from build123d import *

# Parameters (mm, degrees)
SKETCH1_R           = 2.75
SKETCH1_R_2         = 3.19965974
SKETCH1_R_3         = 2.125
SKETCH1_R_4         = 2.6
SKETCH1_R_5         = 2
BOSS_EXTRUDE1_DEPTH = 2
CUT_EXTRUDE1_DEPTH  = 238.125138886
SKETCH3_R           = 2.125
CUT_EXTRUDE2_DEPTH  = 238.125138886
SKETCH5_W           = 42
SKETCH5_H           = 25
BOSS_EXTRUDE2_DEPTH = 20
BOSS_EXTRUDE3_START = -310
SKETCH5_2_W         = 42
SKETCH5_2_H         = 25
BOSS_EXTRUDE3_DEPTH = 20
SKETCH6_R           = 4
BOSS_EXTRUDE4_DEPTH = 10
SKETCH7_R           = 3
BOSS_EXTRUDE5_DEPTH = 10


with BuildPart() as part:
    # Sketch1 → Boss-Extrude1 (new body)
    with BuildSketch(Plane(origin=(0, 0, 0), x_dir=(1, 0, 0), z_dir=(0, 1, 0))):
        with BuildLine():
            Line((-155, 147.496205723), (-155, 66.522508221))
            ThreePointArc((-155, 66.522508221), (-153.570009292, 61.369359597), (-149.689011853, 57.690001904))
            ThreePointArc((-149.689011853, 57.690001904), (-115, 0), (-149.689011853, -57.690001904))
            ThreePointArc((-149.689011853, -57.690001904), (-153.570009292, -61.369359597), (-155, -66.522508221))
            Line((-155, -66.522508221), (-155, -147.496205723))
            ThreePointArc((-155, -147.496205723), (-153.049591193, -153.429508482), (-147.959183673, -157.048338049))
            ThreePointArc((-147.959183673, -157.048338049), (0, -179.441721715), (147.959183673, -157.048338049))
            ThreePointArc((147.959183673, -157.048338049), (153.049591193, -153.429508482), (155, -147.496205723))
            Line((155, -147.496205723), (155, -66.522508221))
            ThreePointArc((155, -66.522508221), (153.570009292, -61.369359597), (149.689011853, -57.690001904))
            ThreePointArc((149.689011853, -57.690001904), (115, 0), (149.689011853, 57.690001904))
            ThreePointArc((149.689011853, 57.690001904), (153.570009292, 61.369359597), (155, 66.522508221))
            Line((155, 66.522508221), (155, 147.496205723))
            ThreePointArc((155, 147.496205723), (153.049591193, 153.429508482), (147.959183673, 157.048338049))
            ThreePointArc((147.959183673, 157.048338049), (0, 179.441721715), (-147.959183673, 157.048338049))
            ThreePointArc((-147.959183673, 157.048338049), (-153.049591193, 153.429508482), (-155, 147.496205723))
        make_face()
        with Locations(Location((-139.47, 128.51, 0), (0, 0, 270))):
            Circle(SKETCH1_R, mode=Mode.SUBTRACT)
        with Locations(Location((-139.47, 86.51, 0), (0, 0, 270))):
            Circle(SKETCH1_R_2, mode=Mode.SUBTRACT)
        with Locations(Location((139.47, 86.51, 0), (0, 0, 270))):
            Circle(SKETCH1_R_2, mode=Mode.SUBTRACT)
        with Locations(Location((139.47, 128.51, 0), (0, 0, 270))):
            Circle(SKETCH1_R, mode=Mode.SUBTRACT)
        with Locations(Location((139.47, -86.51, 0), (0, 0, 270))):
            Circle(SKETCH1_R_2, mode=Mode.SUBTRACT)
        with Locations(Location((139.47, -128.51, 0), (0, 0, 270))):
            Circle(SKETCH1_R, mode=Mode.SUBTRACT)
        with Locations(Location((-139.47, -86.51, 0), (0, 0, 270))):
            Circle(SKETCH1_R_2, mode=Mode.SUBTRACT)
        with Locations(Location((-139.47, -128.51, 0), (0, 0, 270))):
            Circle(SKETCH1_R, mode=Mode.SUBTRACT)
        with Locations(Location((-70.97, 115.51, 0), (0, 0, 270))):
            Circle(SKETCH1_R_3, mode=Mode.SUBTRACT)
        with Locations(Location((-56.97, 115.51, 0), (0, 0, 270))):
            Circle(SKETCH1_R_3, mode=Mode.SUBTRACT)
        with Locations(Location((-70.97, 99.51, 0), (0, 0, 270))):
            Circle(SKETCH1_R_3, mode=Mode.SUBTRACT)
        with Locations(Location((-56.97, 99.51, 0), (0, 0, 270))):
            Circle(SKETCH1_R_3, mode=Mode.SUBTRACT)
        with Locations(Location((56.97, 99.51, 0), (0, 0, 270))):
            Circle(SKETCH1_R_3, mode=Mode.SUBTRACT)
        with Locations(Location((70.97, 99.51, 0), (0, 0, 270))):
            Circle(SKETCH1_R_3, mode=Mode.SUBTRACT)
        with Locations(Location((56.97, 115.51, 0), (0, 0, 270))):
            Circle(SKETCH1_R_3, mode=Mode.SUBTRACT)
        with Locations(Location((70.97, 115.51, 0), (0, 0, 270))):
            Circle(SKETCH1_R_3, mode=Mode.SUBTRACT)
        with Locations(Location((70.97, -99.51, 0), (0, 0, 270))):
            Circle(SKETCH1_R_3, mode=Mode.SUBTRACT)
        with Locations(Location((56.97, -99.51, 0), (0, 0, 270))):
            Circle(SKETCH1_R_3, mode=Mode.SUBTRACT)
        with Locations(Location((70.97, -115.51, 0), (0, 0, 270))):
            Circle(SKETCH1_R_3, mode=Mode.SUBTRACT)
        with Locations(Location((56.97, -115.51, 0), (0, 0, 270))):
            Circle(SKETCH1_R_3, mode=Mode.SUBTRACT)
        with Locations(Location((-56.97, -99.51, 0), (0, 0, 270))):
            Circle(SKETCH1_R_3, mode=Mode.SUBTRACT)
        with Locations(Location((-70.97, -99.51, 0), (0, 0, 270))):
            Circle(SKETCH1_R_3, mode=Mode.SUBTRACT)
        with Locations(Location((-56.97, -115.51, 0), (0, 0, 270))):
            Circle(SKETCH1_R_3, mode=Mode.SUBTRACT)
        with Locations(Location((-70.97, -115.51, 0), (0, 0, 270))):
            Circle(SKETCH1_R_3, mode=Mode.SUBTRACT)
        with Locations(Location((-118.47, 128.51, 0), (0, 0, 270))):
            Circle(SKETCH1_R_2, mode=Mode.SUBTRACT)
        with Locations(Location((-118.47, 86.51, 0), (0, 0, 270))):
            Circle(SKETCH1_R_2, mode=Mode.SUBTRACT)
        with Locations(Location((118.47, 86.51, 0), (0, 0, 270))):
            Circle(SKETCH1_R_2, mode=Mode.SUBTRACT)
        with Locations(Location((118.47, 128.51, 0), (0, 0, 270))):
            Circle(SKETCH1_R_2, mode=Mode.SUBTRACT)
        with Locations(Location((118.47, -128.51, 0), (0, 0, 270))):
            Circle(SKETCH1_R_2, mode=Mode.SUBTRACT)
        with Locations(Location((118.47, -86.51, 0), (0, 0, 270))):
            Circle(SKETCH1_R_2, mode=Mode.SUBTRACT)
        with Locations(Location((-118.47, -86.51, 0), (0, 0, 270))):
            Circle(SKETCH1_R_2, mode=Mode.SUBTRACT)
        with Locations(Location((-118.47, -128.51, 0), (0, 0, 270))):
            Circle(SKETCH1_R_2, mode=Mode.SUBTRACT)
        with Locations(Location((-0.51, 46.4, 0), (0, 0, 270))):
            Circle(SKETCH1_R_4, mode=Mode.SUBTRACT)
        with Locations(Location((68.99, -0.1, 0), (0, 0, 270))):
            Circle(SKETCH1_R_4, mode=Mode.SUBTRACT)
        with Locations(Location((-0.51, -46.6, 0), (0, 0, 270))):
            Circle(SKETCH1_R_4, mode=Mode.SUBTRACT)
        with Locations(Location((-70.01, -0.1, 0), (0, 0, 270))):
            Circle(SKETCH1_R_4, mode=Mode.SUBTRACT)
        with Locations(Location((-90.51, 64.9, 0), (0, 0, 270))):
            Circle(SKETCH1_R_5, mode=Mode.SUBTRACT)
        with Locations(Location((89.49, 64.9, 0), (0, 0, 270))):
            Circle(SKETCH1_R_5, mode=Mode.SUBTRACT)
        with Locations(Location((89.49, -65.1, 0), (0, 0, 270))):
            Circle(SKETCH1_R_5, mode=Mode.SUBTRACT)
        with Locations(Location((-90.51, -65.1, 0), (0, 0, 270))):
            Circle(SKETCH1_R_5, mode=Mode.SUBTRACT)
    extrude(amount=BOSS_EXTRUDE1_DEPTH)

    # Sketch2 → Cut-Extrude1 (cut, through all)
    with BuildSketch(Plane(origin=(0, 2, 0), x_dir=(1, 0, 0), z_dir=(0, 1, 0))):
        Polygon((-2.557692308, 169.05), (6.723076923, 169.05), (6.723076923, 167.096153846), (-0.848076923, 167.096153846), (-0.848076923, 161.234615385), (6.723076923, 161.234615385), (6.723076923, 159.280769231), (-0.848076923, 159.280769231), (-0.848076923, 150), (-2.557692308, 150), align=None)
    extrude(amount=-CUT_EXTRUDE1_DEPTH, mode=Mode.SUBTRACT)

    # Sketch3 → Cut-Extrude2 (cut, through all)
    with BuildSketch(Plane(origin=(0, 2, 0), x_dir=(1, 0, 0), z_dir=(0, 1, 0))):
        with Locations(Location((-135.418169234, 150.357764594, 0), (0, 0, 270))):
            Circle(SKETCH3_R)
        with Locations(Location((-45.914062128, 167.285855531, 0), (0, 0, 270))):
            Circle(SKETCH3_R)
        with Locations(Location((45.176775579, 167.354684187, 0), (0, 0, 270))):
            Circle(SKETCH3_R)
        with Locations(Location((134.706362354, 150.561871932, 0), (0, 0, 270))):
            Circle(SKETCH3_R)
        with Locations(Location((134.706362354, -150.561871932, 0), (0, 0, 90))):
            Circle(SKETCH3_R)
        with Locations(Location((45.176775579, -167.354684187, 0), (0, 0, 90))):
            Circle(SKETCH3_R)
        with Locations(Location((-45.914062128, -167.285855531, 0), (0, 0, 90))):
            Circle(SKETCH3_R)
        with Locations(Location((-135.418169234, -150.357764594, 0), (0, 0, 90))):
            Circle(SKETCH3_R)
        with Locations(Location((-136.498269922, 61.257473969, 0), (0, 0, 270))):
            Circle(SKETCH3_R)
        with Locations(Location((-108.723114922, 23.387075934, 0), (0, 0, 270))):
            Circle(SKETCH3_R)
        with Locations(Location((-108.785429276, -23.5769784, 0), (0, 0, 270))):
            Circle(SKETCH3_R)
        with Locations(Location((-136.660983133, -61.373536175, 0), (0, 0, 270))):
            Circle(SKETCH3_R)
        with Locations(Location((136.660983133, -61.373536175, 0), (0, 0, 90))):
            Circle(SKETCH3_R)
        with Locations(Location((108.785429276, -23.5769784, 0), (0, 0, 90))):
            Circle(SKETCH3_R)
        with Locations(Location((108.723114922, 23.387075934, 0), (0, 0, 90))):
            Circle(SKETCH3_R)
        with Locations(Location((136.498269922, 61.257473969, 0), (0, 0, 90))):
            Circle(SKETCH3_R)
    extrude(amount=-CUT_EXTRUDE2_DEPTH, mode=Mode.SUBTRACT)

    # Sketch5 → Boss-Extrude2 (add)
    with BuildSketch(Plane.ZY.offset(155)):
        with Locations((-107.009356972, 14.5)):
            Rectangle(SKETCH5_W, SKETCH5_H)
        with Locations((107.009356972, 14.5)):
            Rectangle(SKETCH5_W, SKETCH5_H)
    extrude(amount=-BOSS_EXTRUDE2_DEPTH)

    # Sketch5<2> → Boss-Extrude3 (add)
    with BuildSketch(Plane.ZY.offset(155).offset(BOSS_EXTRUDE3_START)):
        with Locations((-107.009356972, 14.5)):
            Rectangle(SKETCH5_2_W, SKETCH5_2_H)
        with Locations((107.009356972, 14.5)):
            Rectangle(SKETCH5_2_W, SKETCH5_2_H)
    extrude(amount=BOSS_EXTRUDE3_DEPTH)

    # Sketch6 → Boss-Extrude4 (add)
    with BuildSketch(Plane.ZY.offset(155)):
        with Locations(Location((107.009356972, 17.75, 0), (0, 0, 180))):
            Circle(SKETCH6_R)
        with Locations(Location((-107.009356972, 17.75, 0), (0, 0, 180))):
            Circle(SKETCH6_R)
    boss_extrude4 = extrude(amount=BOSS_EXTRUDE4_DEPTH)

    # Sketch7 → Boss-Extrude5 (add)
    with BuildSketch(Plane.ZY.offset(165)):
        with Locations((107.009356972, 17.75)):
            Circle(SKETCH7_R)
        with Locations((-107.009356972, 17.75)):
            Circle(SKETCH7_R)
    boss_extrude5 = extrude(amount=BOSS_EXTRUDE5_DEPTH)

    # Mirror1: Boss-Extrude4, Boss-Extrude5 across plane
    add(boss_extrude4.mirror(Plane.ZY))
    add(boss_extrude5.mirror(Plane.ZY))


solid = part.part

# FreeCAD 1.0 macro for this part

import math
import FreeCAD as App
import Part
import Sketcher


def add_polygon(sketch, points):
    """Adds a closed chain of lines whose ends are joined by coincident constraints."""
    first, n = sketch.GeometryCount, len(points)
    for a, b in zip(points, points[1:] + points[:1]):
        sketch.addGeometry(Part.LineSegment(App.Vector(*a, 0), App.Vector(*b, 0)), False)
    for i in range(n):
        sketch.addConstraint(Sketcher.Constraint("Coincident", first + i, 2, first + (i + 1) % n, 1))

doc = App.newDocument("Part")
body = doc.addObject("PartDesign::Body", "Body")

sketch1 = body.newObject("Sketcher::SketchObject", "Sketch")
sketch1.AttachmentSupport = (doc.getObject("XZ_Plane"), [""])
sketch1.MapMode = "FlatFace"
sketch1.addGeometry([
    Part.LineSegment(App.Vector(-155, -147.496206, 0), App.Vector(-155, -66.522508, 0)),
    Part.ArcOfCircle(Part.Circle(App.Vector(-145, -66.522508, 0), App.Vector(0, 0, 1), 10), math.radians(117.962994), math.radians(180)),
    Part.ArcOfCircle(Part.Circle(App.Vector(-180.315551, 0, 0), App.Vector(0, 0, 1), 65.315551), math.radians(-62.037006), math.radians(62.037006)),
    Part.ArcOfCircle(Part.Circle(App.Vector(-145, 66.522508, 0), App.Vector(0, 0, 1), 10), math.radians(180), math.radians(242.037006)),
    Part.LineSegment(App.Vector(-155, 66.522508, 0), App.Vector(-155, 147.496206, 0)),
    Part.ArcOfCircle(Part.Circle(App.Vector(-145, 147.496206, 0), App.Vector(0, 0, 1), 10), math.radians(107.212615), math.radians(180)),
    Part.ArcOfCircle(Part.Circle(App.Vector(0, -320.558278, 0), App.Vector(0, 0, 1), 500), math.radians(72.787385), math.radians(107.212615)),
    Part.ArcOfCircle(Part.Circle(App.Vector(145, 147.496206, 0), App.Vector(0, 0, 1), 10), math.radians(0), math.radians(72.787385)),
    Part.LineSegment(App.Vector(155, 147.496206, 0), App.Vector(155, 66.522508, 0)),
    Part.ArcOfCircle(Part.Circle(App.Vector(145, 66.522508, 0), App.Vector(0, 0, 1), 10), math.radians(-62.037006), math.radians(0)),
    Part.ArcOfCircle(Part.Circle(App.Vector(180.315551, 0, 0), App.Vector(0, 0, 1), 65.315551), math.radians(117.962994), math.radians(242.037006)),
    Part.ArcOfCircle(Part.Circle(App.Vector(145, -66.522508, 0), App.Vector(0, 0, 1), 10), math.radians(0), math.radians(62.037006)),
    Part.LineSegment(App.Vector(155, -66.522508, 0), App.Vector(155, -147.496206, 0)),
    Part.ArcOfCircle(Part.Circle(App.Vector(145, -147.496206, 0), App.Vector(0, 0, 1), 10), math.radians(-72.787385), math.radians(0)),
    Part.ArcOfCircle(Part.Circle(App.Vector(0, 320.558278, 0), App.Vector(0, 0, 1), 500), math.radians(-107.212615), math.radians(-72.787385)),
    Part.ArcOfCircle(Part.Circle(App.Vector(-145, -147.496206, 0), App.Vector(0, 0, 1), 10), math.radians(180), math.radians(252.787385)),
    Part.Circle(App.Vector(-139.47, 128.51, 0), App.Vector(0, 0, 1), 2.75),
    Part.Circle(App.Vector(-118.47, 128.51, 0), App.Vector(0, 0, 1), 3.19966),
    Part.Circle(App.Vector(-139.47, 86.51, 0), App.Vector(0, 0, 1), 3.19966),
    Part.Circle(App.Vector(-118.47, 86.51, 0), App.Vector(0, 0, 1), 3.19966),
    Part.Circle(App.Vector(-70.97, 115.51, 0), App.Vector(0, 0, 1), 2.125),
    Part.Circle(App.Vector(-56.97, 115.51, 0), App.Vector(0, 0, 1), 2.125),
    Part.Circle(App.Vector(-70.97, 99.51, 0), App.Vector(0, 0, 1), 2.125),
    Part.Circle(App.Vector(-56.97, 99.51, 0), App.Vector(0, 0, 1), 2.125),
    Part.Circle(App.Vector(-90.51, 65.1, 0), App.Vector(0, 0, 1), 2),
    Part.Circle(App.Vector(-0.51, 46.6, 0), App.Vector(0, 0, 1), 2.6),
    Part.Circle(App.Vector(-70.01, 0.1, 0), App.Vector(0, 0, 1), 2.6),
    Part.Circle(App.Vector(56.97, 115.51, 0), App.Vector(0, 0, 1), 2.125),
    Part.Circle(App.Vector(70.97, 115.51, 0), App.Vector(0, 0, 1), 2.125),
    Part.Circle(App.Vector(56.97, 99.51, 0), App.Vector(0, 0, 1), 2.125),
    Part.Circle(App.Vector(70.97, 99.51, 0), App.Vector(0, 0, 1), 2.125),
    Part.Circle(App.Vector(118.47, 128.51, 0), App.Vector(0, 0, 1), 3.19966),
    Part.Circle(App.Vector(139.47, 128.51, 0), App.Vector(0, 0, 1), 2.75),
    Part.Circle(App.Vector(118.47, 86.51, 0), App.Vector(0, 0, 1), 3.19966),
    Part.Circle(App.Vector(139.47, 86.51, 0), App.Vector(0, 0, 1), 3.19966),
    Part.Circle(App.Vector(68.99, 0.1, 0), App.Vector(0, 0, 1), 2.6),
    Part.Circle(App.Vector(89.49, 65.1, 0), App.Vector(0, 0, 1), 2),
    Part.Circle(App.Vector(-90.51, -64.9, 0), App.Vector(0, 0, 1), 2),
    Part.Circle(App.Vector(-0.51, -46.4, 0), App.Vector(0, 0, 1), 2.6),
    Part.Circle(App.Vector(-139.47, -86.51, 0), App.Vector(0, 0, 1), 3.19966),
    Part.Circle(App.Vector(-118.47, -86.51, 0), App.Vector(0, 0, 1), 3.19966),
    Part.Circle(App.Vector(-139.47, -128.51, 0), App.Vector(0, 0, 1), 2.75),
    Part.Circle(App.Vector(-118.47, -128.51, 0), App.Vector(0, 0, 1), 3.19966),
    Part.Circle(App.Vector(-70.97, -99.51, 0), App.Vector(0, 0, 1), 2.125),
    Part.Circle(App.Vector(-56.97, -99.51, 0), App.Vector(0, 0, 1), 2.125),
    Part.Circle(App.Vector(-70.97, -115.51, 0), App.Vector(0, 0, 1), 2.125),
    Part.Circle(App.Vector(-56.97, -115.51, 0), App.Vector(0, 0, 1), 2.125),
    Part.Circle(App.Vector(89.49, -64.9, 0), App.Vector(0, 0, 1), 2),
    Part.Circle(App.Vector(56.97, -99.51, 0), App.Vector(0, 0, 1), 2.125),
    Part.Circle(App.Vector(70.97, -99.51, 0), App.Vector(0, 0, 1), 2.125),
    Part.Circle(App.Vector(56.97, -115.51, 0), App.Vector(0, 0, 1), 2.125),
    Part.Circle(App.Vector(70.97, -115.51, 0), App.Vector(0, 0, 1), 2.125),
    Part.Circle(App.Vector(118.47, -86.51, 0), App.Vector(0, 0, 1), 3.19966),
    Part.Circle(App.Vector(139.47, -86.51, 0), App.Vector(0, 0, 1), 3.19966),
    Part.Circle(App.Vector(118.47, -128.51, 0), App.Vector(0, 0, 1), 3.19966),
    Part.Circle(App.Vector(139.47, -128.51, 0), App.Vector(0, 0, 1), 2.75),
], False)
sketch1.addConstraint([
    Sketcher.Constraint("Tangent", 0, 2, 1, 2),
    Sketcher.Constraint("Tangent", 1, 1, 2, 1),
    Sketcher.Constraint("Tangent", 2, 2, 3, 2),
    Sketcher.Constraint("Tangent", 3, 1, 4, 1),
    Sketcher.Constraint("Tangent", 4, 2, 5, 2),
    Sketcher.Constraint("Tangent", 5, 1, 6, 2),
    Sketcher.Constraint("Tangent", 6, 1, 7, 2),
    Sketcher.Constraint("Tangent", 7, 1, 8, 1),
    Sketcher.Constraint("Tangent", 8, 2, 9, 2),
    Sketcher.Constraint("Tangent", 9, 1, 10, 1),
    Sketcher.Constraint("Tangent", 10, 2, 11, 2),
    Sketcher.Constraint("Tangent", 11, 1, 12, 1),
    Sketcher.Constraint("Tangent", 12, 2, 13, 2),
    Sketcher.Constraint("Tangent", 13, 1, 14, 2),
    Sketcher.Constraint("Tangent", 14, 1, 15, 2),
    Sketcher.Constraint("Tangent", 15, 1, 0, 1),
    Sketcher.Constraint("Vertical", 0),
    Sketcher.Constraint("Vertical", 4),
    Sketcher.Constraint("Vertical", 8),
    Sketcher.Constraint("Vertical", 12),
    Sketcher.Constraint("Equal", 1, 3),
    Sketcher.Constraint("Equal", 3, 5),
    Sketcher.Constraint("Equal", 5, 7),
    Sketcher.Constraint("Equal", 7, 9),
    Sketcher.Constraint("Equal", 2, 10),
    Sketcher.Constraint("Equal", 9, 11),
    Sketcher.Constraint("Equal", 11, 13),
    Sketcher.Constraint("Equal", 6, 14),
    Sketcher.Constraint("Equal", 13, 15),
    Sketcher.Constraint("Equal", 17, 18),
    Sketcher.Constraint("Equal", 18, 19),
    Sketcher.Constraint("Equal", 20, 21),
    Sketcher.Constraint("Equal", 21, 22),
    Sketcher.Constraint("Equal", 22, 23),
    Sketcher.Constraint("Equal", 25, 26),
    Sketcher.Constraint("Equal", 23, 27),
    Sketcher.Constraint("Equal", 27, 28),
    Sketcher.Constraint("Equal", 28, 29),
    Sketcher.Constraint("Equal", 29, 30),
    Sketcher.Constraint("Equal", 19, 31),
    Sketcher.Constraint("Equal", 16, 32),
    Sketcher.Constraint("Equal", 31, 33),
    Sketcher.Constraint("Equal", 33, 34),
    Sketcher.Constraint("Equal", 26, 35),
    Sketcher.Constraint("Equal", 24, 36),
    Sketcher.Constraint("Equal", 36, 37),
    Sketcher.Constraint("Equal", 35, 38),
    Sketcher.Constraint("Equal", 34, 39),
    Sketcher.Constraint("Equal", 39, 40),
    Sketcher.Constraint("Equal", 32, 41),
    Sketcher.Constraint("Equal", 40, 42),
    Sketcher.Constraint("Equal", 30, 43),
    Sketcher.Constraint("Equal", 43, 44),
    Sketcher.Constraint("Equal", 44, 45),
    Sketcher.Constraint("Equal", 45, 46),
    Sketcher.Constraint("Equal", 37, 47),
    Sketcher.Constraint("Equal", 46, 48),
    Sketcher.Constraint("Equal", 48, 49),
    Sketcher.Constraint("Equal", 49, 50),
    Sketcher.Constraint("Equal", 50, 51),
    Sketcher.Constraint("Equal", 42, 52),
    Sketcher.Constraint("Equal", 52, 53),
    Sketcher.Constraint("Equal", 53, 54),
    Sketcher.Constraint("Equal", 41, 55),
    Sketcher.Constraint("Symmetric", 1, 3, 9, 3, -1, 1),
    Sketcher.Constraint("Symmetric", 3, 3, 11, 3, -1, 1),
    Sketcher.Constraint("Symmetric", 6, 3, 14, 3, -1, 1),
    Sketcher.Constraint("Symmetric", 34, 3, 39, 3, -1, 1),
    Sketcher.Constraint("Symmetric", 33, 3, 40, 3, -1, 1),
    Sketcher.Constraint("Symmetric", 32, 3, 41, 3, -1, 1),
    Sketcher.Constraint("Symmetric", 31, 3, 42, 3, -1, 1),
    Sketcher.Constraint("Symmetric", 30, 3, 43, 3, -1, 1),
    Sketcher.Constraint("Symmetric", 29, 3, 44, 3, -1, 1),
    Sketcher.Constraint("Symmetric", 28, 3, 45, 3, -1, 1),
    Sketcher.Constraint("Symmetric", 27, 3, 46, 3, -1, 1),
    Sketcher.Constraint("Symmetric", 23, 3, 48, 3, -1, 1),
    Sketcher.Constraint("Symmetric", 22, 3, 49, 3, -1, 1),
    Sketcher.Constraint("Symmetric", 21, 3, 50, 3, -1, 1),
    Sketcher.Constraint("Symmetric", 20, 3, 51, 3, -1, 1),
    Sketcher.Constraint("Symmetric", 19, 3, 52, 3, -1, 1),
    Sketcher.Constraint("Symmetric", 18, 3, 53, 3, -1, 1),
    Sketcher.Constraint("Symmetric", 17, 3, 54, 3, -1, 1),
    Sketcher.Constraint("Symmetric", 16, 3, 55, 3, -1, 1),
    Sketcher.Constraint("Symmetric", 5, 3, 7, 3, -2),
    Sketcher.Constraint("Symmetric", 21, 3, 27, 3, -2),
    Sketcher.Constraint("Symmetric", 20, 3, 28, 3, -2),
    Sketcher.Constraint("Symmetric", 23, 3, 29, 3, -2),
    Sketcher.Constraint("Symmetric", 22, 3, 30, 3, -2),
    Sketcher.Constraint("Symmetric", 17, 3, 31, 3, -2),
    Sketcher.Constraint("Symmetric", 16, 3, 32, 3, -2),
    Sketcher.Constraint("Symmetric", 19, 3, 33, 3, -2),
    Sketcher.Constraint("Symmetric", 18, 3, 34, 3, -2),
    Sketcher.Constraint("PointOnObject", 2, 3, -1),
    Sketcher.Constraint("Horizontal", 16, 3, 17, 3),
    Sketcher.Constraint("Horizontal", 18, 3, 19, 3),
    Sketcher.Constraint("Horizontal", 20, 3, 21, 3),
    Sketcher.Constraint("Horizontal", 22, 3, 23, 3),
    Sketcher.Constraint("Horizontal", 26, 3, 35, 3),
    Sketcher.Constraint("Horizontal", 24, 3, 36, 3),
    Sketcher.Constraint("Horizontal", 37, 3, 47, 3),
    Sketcher.Constraint("Vertical", 16, 3, 18, 3),
    Sketcher.Constraint("Vertical", 17, 3, 19, 3),
    Sketcher.Constraint("Vertical", 20, 3, 22, 3),
    Sketcher.Constraint("Vertical", 21, 3, 23, 3),
    Sketcher.Constraint("Vertical", 24, 3, 37, 3),
    Sketcher.Constraint("Vertical", 25, 3, 38, 3),
    Sketcher.Constraint("Vertical", 36, 3, 47, 3),
    Sketcher.Constraint("Diameter", 24, 4.0),
    Sketcher.Constraint("Radius", 1, 10.0),
    Sketcher.Constraint("Radius", 6, 500.0),
    Sketcher.Constraint("Diameter", 16, 5.5),
    Sketcher.Constraint("Diameter", 25, 5.2),
    Sketcher.Constraint("Diameter", 20, 4.25),
    Sketcher.Constraint("DistanceX", 1, 3, -1, 1, 145.0),
    Sketcher.Constraint("DistanceY", -1, 1, 24, 3, 65.1),
    Sketcher.Constraint("DistanceY", -1, 1, 25, 3, 46.6),
    Sketcher.Constraint("DistanceY", -1, 1, 26, 3, 0.1),
    Sketcher.Constraint("DistanceY", 37, 3, -1, 1, 64.9),
    Sketcher.Constraint("DistanceY", 38, 3, -1, 1, 46.4),
    Sketcher.Constraint("Diameter", 17, 6.399319),
    Sketcher.Constraint("DistanceX", 16, 3, -1, 1, 139.47),
    Sketcher.Constraint("DistanceY", -1, 1, 16, 3, 128.51),
    Sketcher.Constraint("DistanceX", 17, 3, -1, 1, 118.47),
    Sketcher.Constraint("DistanceY", -1, 1, 18, 3, 86.51),
    Sketcher.Constraint("DistanceX", 20, 3, -1, 1, 70.97),
    Sketcher.Constraint("DistanceY", -1, 1, 20, 3, 115.51),
    Sketcher.Constraint("DistanceX", 21, 3, -1, 1, 56.97),
    Sketcher.Constraint("DistanceY", -1, 1, 22, 3, 99.51),
    Sketcher.Constraint("DistanceX", 24, 3, -1, 1, 90.51),
    Sketcher.Constraint("DistanceX", 25, 3, -1, 1, 0.51),
    Sketcher.Constraint("DistanceX", 26, 3, -1, 1, 70.01),
    Sketcher.Constraint("DistanceX", -1, 1, 35, 3, 68.99),
    Sketcher.Constraint("DistanceX", -1, 1, 36, 3, 89.49),
    Sketcher.Constraint("DistanceY", 1, 1, -1, 1, 57.690002),
    Sketcher.Constraint("Radius", 2, 65.315551),
    Sketcher.Constraint("DistanceY", 0, 1, 0, 2, 80.973698),
])
pad1 = body.newObject("PartDesign::Pad", "Pad")
pad1.Profile = sketch1
pad1.Length = 2
pad1.Reversed = True

sketch2 = body.newObject("Sketcher::SketchObject", "Sketch001")
sketch2.AttachmentSupport = (doc.getObject("XZ_Plane"), [""])
sketch2.MapMode = "FlatFace"
sketch2.AttachmentOffset = App.Placement(App.Vector(0, 0, -2), App.Rotation())
add_polygon(sketch2, [(6.723077, -169.05), (-2.557692, -169.05), (-2.557692, -150), (-0.848077, -150), (-0.848077, -159.280769), (6.723077, -159.280769), (6.723077, -161.234615), (-0.848077, -161.234615), (-0.848077, -167.096154), (6.723077, -167.096154)])
sketch2.addConstraint([
    Sketcher.Constraint("Horizontal", 0),
    Sketcher.Constraint("Vertical", 1),
    Sketcher.Constraint("Horizontal", 2),
    Sketcher.Constraint("Vertical", 3),
    Sketcher.Constraint("Horizontal", 4),
    Sketcher.Constraint("Vertical", 5),
    Sketcher.Constraint("Horizontal", 6),
    Sketcher.Constraint("Vertical", 7),
    Sketcher.Constraint("Horizontal", 8),
    Sketcher.Constraint("Vertical", 9),
    Sketcher.Constraint("Vertical", 3, 2, 6, 2),
    Sketcher.Constraint("Vertical", 5, 2, 8, 2),
    Sketcher.Constraint("Equal", 0, 3),
    Sketcher.Constraint("Equal", 5, 9),
    Sketcher.Constraint("DistanceY", 1, 2, -1, 1, 150.0),
    Sketcher.Constraint("DistanceY", 1, 1, 1, 2, 19.05),
    Sketcher.Constraint("DistanceX", 0, 2, 0, 1, 9.280769),
    Sketcher.Constraint("DistanceY", 7, 2, 7, 1, 5.861538),
    Sketcher.Constraint("DistanceX", 2, 1, 2, 2, 1.709615),
    Sketcher.Constraint("DistanceX", 0, 2, -1, 1, 2.557692),
])
pocket1 = body.newObject("PartDesign::Pocket", "Pocket")
pocket1.Profile = sketch2
pocket1.Type = "ThroughAll"
pocket1.Reversed = True

sketch3 = body.newObject("Sketcher::SketchObject", "Sketch002")
sketch3.AttachmentSupport = (doc.getObject("XZ_Plane"), [""])
sketch3.MapMode = "FlatFace"
sketch3.AttachmentOffset = App.Placement(App.Vector(0, 0, -2), App.Rotation())
sketch3.addGeometry([
    Part.Circle(App.Vector(-135.418169, -150.357765, 0), App.Vector(0, 0, 1), 2.125),
    Part.Circle(App.Vector(-45.914062, -167.285856, 0), App.Vector(0, 0, 1), 2.125),
    Part.Circle(App.Vector(45.176776, -167.354684, 0), App.Vector(0, 0, 1), 2.125),
    Part.Circle(App.Vector(134.706362, -150.561872, 0), App.Vector(0, 0, 1), 2.125),
    Part.Circle(App.Vector(134.706362, 150.561872, 0), App.Vector(0, 0, 1), 2.125),
    Part.Circle(App.Vector(45.176776, 167.354684, 0), App.Vector(0, 0, 1), 2.125),
    Part.Circle(App.Vector(-45.914062, 167.285856, 0), App.Vector(0, 0, 1), 2.125),
    Part.Circle(App.Vector(-135.418169, 150.357765, 0), App.Vector(0, 0, 1), 2.125),
    Part.Circle(App.Vector(-136.49827, -61.257474, 0), App.Vector(0, 0, 1), 2.125),
    Part.Circle(App.Vector(-108.723115, -23.387076, 0), App.Vector(0, 0, 1), 2.125),
    Part.Circle(App.Vector(-108.785429, 23.576978, 0), App.Vector(0, 0, 1), 2.125),
    Part.Circle(App.Vector(-136.660983, 61.373536, 0), App.Vector(0, 0, 1), 2.125),
    Part.Circle(App.Vector(136.660983, 61.373536, 0), App.Vector(0, 0, 1), 2.125),
    Part.Circle(App.Vector(108.785429, 23.576978, 0), App.Vector(0, 0, 1), 2.125),
    Part.Circle(App.Vector(108.723115, -23.387076, 0), App.Vector(0, 0, 1), 2.125),
    Part.Circle(App.Vector(136.49827, -61.257474, 0), App.Vector(0, 0, 1), 2.125),
], False)
sketch3.addConstraint([
    Sketcher.Constraint("Equal", 0, 1),
    Sketcher.Constraint("Equal", 1, 2),
    Sketcher.Constraint("Equal", 2, 3),
    Sketcher.Constraint("Equal", 3, 4),
    Sketcher.Constraint("Equal", 4, 5),
    Sketcher.Constraint("Equal", 5, 6),
    Sketcher.Constraint("Equal", 6, 7),
    Sketcher.Constraint("Equal", 7, 8),
    Sketcher.Constraint("Equal", 8, 9),
    Sketcher.Constraint("Equal", 9, 10),
    Sketcher.Constraint("Equal", 10, 11),
    Sketcher.Constraint("Equal", 11, 12),
    Sketcher.Constraint("Equal", 12, 13),
    Sketcher.Constraint("Equal", 13, 14),
    Sketcher.Constraint("Equal", 14, 15),
    Sketcher.Constraint("Symmetric", 11, 3, 12, 3, -2),
    Sketcher.Constraint("Symmetric", 10, 3, 13, 3, -2),
    Sketcher.Constraint("Symmetric", 9, 3, 14, 3, -2),
    Sketcher.Constraint("Symmetric", 8, 3, 15, 3, -2),
    Sketcher.Constraint("Symmetric", 3, 3, 4, 3, -1),
    Sketcher.Constraint("Symmetric", 2, 3, 5, 3, -1),
    Sketcher.Constraint("Symmetric", 1, 3, 6, 3, -1),
    Sketcher.Constraint("Symmetric", 0, 3, 7, 3, -1),
    Sketcher.Constraint("Diameter", 0, 4.25),
    Sketcher.Constraint("DistanceX", 8, 3, 0, 3, 1.080101),
    Sketcher.Constraint("DistanceY", 8, 3, 9, 3, 37.870398),
    Sketcher.Constraint("DistanceX", 0, 3, -1, 1, 135.418169),
    Sketcher.Constraint("DistanceY", 3, 3, -1, 1, 150.561872),
    Sketcher.Constraint("DistanceX", 10, 3, -1, 1, 108.785429),
    Sketcher.Constraint("DistanceY", -1, 1, 10, 3, 23.576978),
    Sketcher.Constraint("DistanceY", 1, 3, 0, 3, 16.928091),
    Sketcher.Constraint("DistanceY", 2, 3, 1, 3, 0.068829),
    Sketcher.Constraint("DistanceX", 0, 3, 3, 3, 270.124532),
    Sketcher.Constraint("DistanceY", 2, 3, 5, 3, 334.709368),
    Sketcher.Constraint("DistanceY", 0, 3, 8, 3, 89.100291),
    Sketcher.Constraint("DistanceY", 11, 3, 7, 3, 88.984228),
    Sketcher.Constraint("DistanceX", 11, 3, 9, 3, 27.937868),
    Sketcher.Constraint("DistanceX", 11, 3, 6, 3, 90.746921),
    Sketcher.Constraint("DistanceX", 4, 3, 12, 3, 1.954621),
    Sketcher.Constraint("DistanceX", 2, 3, 14, 3, 63.546339),
])
pocket2 = body.newObject("PartDesign::Pocket", "Pocket001")
pocket2.Profile = sketch3
pocket2.Type = "ThroughAll"
pocket2.Reversed = True

sketch4 = body.newObject("Sketcher::SketchObject", "Sketch003")
sketch4.AttachmentSupport = (doc.getObject("YZ_Plane"), [""])
sketch4.MapMode = "FlatFace"
sketch4.AttachmentOffset = App.Placement(App.Vector(0, 0, -155), App.Rotation())
add_polygon(sketch4, [(27, -128.009357), (2, -128.009357), (2, -86.009357), (27, -86.009357)])
add_polygon(sketch4, [(27, 86.009357), (2, 86.009357), (2, 128.009357), (27, 128.009357)])
sketch4.addConstraint([
    Sketcher.Constraint("Horizontal", 0),
    Sketcher.Constraint("Vertical", 1),
    Sketcher.Constraint("Horizontal", 2),
    Sketcher.Constraint("Vertical", 3),
    Sketcher.Constraint("Horizontal", 4),
    Sketcher.Constraint("Vertical", 5),
    Sketcher.Constraint("Horizontal", 6),
    Sketcher.Constraint("Vertical", 7),
    Sketcher.Constraint("Symmetric", 1, 2, 4, 2, -1),
    Sketcher.Constraint("Symmetric", 3, 2, 6, 2, -1),
    Sketcher.Constraint("DistanceX", 0, 2, 0, 1, 25.0),
    Sketcher.Constraint("DistanceY", 1, 1, 1, 2, 42.0),
    Sketcher.Constraint("DistanceX", -1, 1, 0, 2, 2.0),
    Sketcher.Constraint("DistanceY", 0, 2, -1, 1, 128.009357),
])
pad2 = body.newObject("PartDesign::Pad", "Pad001")
pad2.Profile = sketch4
pad2.Length = 20

sketch5 = body.newObject("Sketcher::SketchObject", "Sketch004")
sketch5.AttachmentSupport = (doc.getObject("YZ_Plane"), [""])
sketch5.MapMode = "FlatFace"
sketch5.AttachmentOffset = App.Placement(App.Vector(0, 0, 155), App.Rotation())
add_polygon(sketch5, [(27, -128.009357), (2, -128.009357), (2, -86.009357), (27, -86.009357)])
add_polygon(sketch5, [(27, 86.009357), (2, 86.009357), (2, 128.009357), (27, 128.009357)])
sketch5.addConstraint([
    Sketcher.Constraint("Horizontal", 0),
    Sketcher.Constraint("Vertical", 1),
    Sketcher.Constraint("Horizontal", 2),
    Sketcher.Constraint("Vertical", 3),
    Sketcher.Constraint("Horizontal", 4),
    Sketcher.Constraint("Vertical", 5),
    Sketcher.Constraint("Horizontal", 6),
    Sketcher.Constraint("Vertical", 7),
    Sketcher.Constraint("Symmetric", 1, 2, 4, 2, -1),
    Sketcher.Constraint("Symmetric", 3, 2, 6, 2, -1),
    Sketcher.Constraint("DistanceX", 0, 2, 0, 1, 25.0),
    Sketcher.Constraint("DistanceY", 1, 1, 1, 2, 42.0),
    Sketcher.Constraint("DistanceX", -1, 1, 0, 2, 2.0),
    Sketcher.Constraint("DistanceY", 0, 2, -1, 1, 128.009357),
])
pad3 = body.newObject("PartDesign::Pad", "Pad002")
pad3.Profile = sketch5
pad3.Length = 20
pad3.Reversed = True

sketch6 = body.newObject("Sketcher::SketchObject", "Sketch005")
sketch6.AttachmentSupport = (doc.getObject("YZ_Plane"), [""])
sketch6.MapMode = "FlatFace"
sketch6.AttachmentOffset = App.Placement(App.Vector(0, 0, -155), App.Rotation())
sketch6.addGeometry([
    Part.Circle(App.Vector(17.75, 107.009357, 0), App.Vector(0, 0, 1), 4),
    Part.Circle(App.Vector(17.75, -107.009357, 0), App.Vector(0, 0, 1), 4),
], False)
sketch6.addConstraint([
    Sketcher.Constraint("Equal", 0, 1),
    Sketcher.Constraint("Symmetric", 0, 3, 1, 3, -1),
    Sketcher.Constraint("Diameter", 0, 8.0),
    Sketcher.Constraint("DistanceX", -1, 1, 0, 3, 17.75),
    Sketcher.Constraint("DistanceY", -1, 1, 0, 3, 107.009357),
])
pad4 = body.newObject("PartDesign::Pad", "Pad003")
pad4.Profile = sketch6
pad4.Length = 10
pad4.Reversed = True

sketch7 = body.newObject("Sketcher::SketchObject", "Sketch006")
sketch7.AttachmentSupport = (doc.getObject("YZ_Plane"), [""])
sketch7.MapMode = "FlatFace"
sketch7.AttachmentOffset = App.Placement(App.Vector(0, 0, -165), App.Rotation())
sketch7.addGeometry([
    Part.Circle(App.Vector(17.75, 107.009357, 0), App.Vector(0, 0, 1), 3),
    Part.Circle(App.Vector(17.75, -107.009357, 0), App.Vector(0, 0, 1), 3),
], False)
sketch7.addConstraint([
    Sketcher.Constraint("Equal", 0, 1),
    Sketcher.Constraint("Symmetric", 0, 3, 1, 3, -1),
    Sketcher.Constraint("Diameter", 0, 6.0),
    Sketcher.Constraint("DistanceX", -1, 1, 0, 3, 17.75),
    Sketcher.Constraint("DistanceY", -1, 1, 0, 3, 107.009357),
])
pad5 = body.newObject("PartDesign::Pad", "Pad004")
pad5.Profile = sketch7
pad5.Length = 10
pad5.Reversed = True
doc.recompute()

mirrored = body.newObject("PartDesign::Mirrored", "Mirrored")
mirrored.Originals = [pad4, pad5]
mirrored.MirrorPlane = (doc.getObject("YZ_Plane"), [""])
body.Tip = mirrored

doc.recompute()
